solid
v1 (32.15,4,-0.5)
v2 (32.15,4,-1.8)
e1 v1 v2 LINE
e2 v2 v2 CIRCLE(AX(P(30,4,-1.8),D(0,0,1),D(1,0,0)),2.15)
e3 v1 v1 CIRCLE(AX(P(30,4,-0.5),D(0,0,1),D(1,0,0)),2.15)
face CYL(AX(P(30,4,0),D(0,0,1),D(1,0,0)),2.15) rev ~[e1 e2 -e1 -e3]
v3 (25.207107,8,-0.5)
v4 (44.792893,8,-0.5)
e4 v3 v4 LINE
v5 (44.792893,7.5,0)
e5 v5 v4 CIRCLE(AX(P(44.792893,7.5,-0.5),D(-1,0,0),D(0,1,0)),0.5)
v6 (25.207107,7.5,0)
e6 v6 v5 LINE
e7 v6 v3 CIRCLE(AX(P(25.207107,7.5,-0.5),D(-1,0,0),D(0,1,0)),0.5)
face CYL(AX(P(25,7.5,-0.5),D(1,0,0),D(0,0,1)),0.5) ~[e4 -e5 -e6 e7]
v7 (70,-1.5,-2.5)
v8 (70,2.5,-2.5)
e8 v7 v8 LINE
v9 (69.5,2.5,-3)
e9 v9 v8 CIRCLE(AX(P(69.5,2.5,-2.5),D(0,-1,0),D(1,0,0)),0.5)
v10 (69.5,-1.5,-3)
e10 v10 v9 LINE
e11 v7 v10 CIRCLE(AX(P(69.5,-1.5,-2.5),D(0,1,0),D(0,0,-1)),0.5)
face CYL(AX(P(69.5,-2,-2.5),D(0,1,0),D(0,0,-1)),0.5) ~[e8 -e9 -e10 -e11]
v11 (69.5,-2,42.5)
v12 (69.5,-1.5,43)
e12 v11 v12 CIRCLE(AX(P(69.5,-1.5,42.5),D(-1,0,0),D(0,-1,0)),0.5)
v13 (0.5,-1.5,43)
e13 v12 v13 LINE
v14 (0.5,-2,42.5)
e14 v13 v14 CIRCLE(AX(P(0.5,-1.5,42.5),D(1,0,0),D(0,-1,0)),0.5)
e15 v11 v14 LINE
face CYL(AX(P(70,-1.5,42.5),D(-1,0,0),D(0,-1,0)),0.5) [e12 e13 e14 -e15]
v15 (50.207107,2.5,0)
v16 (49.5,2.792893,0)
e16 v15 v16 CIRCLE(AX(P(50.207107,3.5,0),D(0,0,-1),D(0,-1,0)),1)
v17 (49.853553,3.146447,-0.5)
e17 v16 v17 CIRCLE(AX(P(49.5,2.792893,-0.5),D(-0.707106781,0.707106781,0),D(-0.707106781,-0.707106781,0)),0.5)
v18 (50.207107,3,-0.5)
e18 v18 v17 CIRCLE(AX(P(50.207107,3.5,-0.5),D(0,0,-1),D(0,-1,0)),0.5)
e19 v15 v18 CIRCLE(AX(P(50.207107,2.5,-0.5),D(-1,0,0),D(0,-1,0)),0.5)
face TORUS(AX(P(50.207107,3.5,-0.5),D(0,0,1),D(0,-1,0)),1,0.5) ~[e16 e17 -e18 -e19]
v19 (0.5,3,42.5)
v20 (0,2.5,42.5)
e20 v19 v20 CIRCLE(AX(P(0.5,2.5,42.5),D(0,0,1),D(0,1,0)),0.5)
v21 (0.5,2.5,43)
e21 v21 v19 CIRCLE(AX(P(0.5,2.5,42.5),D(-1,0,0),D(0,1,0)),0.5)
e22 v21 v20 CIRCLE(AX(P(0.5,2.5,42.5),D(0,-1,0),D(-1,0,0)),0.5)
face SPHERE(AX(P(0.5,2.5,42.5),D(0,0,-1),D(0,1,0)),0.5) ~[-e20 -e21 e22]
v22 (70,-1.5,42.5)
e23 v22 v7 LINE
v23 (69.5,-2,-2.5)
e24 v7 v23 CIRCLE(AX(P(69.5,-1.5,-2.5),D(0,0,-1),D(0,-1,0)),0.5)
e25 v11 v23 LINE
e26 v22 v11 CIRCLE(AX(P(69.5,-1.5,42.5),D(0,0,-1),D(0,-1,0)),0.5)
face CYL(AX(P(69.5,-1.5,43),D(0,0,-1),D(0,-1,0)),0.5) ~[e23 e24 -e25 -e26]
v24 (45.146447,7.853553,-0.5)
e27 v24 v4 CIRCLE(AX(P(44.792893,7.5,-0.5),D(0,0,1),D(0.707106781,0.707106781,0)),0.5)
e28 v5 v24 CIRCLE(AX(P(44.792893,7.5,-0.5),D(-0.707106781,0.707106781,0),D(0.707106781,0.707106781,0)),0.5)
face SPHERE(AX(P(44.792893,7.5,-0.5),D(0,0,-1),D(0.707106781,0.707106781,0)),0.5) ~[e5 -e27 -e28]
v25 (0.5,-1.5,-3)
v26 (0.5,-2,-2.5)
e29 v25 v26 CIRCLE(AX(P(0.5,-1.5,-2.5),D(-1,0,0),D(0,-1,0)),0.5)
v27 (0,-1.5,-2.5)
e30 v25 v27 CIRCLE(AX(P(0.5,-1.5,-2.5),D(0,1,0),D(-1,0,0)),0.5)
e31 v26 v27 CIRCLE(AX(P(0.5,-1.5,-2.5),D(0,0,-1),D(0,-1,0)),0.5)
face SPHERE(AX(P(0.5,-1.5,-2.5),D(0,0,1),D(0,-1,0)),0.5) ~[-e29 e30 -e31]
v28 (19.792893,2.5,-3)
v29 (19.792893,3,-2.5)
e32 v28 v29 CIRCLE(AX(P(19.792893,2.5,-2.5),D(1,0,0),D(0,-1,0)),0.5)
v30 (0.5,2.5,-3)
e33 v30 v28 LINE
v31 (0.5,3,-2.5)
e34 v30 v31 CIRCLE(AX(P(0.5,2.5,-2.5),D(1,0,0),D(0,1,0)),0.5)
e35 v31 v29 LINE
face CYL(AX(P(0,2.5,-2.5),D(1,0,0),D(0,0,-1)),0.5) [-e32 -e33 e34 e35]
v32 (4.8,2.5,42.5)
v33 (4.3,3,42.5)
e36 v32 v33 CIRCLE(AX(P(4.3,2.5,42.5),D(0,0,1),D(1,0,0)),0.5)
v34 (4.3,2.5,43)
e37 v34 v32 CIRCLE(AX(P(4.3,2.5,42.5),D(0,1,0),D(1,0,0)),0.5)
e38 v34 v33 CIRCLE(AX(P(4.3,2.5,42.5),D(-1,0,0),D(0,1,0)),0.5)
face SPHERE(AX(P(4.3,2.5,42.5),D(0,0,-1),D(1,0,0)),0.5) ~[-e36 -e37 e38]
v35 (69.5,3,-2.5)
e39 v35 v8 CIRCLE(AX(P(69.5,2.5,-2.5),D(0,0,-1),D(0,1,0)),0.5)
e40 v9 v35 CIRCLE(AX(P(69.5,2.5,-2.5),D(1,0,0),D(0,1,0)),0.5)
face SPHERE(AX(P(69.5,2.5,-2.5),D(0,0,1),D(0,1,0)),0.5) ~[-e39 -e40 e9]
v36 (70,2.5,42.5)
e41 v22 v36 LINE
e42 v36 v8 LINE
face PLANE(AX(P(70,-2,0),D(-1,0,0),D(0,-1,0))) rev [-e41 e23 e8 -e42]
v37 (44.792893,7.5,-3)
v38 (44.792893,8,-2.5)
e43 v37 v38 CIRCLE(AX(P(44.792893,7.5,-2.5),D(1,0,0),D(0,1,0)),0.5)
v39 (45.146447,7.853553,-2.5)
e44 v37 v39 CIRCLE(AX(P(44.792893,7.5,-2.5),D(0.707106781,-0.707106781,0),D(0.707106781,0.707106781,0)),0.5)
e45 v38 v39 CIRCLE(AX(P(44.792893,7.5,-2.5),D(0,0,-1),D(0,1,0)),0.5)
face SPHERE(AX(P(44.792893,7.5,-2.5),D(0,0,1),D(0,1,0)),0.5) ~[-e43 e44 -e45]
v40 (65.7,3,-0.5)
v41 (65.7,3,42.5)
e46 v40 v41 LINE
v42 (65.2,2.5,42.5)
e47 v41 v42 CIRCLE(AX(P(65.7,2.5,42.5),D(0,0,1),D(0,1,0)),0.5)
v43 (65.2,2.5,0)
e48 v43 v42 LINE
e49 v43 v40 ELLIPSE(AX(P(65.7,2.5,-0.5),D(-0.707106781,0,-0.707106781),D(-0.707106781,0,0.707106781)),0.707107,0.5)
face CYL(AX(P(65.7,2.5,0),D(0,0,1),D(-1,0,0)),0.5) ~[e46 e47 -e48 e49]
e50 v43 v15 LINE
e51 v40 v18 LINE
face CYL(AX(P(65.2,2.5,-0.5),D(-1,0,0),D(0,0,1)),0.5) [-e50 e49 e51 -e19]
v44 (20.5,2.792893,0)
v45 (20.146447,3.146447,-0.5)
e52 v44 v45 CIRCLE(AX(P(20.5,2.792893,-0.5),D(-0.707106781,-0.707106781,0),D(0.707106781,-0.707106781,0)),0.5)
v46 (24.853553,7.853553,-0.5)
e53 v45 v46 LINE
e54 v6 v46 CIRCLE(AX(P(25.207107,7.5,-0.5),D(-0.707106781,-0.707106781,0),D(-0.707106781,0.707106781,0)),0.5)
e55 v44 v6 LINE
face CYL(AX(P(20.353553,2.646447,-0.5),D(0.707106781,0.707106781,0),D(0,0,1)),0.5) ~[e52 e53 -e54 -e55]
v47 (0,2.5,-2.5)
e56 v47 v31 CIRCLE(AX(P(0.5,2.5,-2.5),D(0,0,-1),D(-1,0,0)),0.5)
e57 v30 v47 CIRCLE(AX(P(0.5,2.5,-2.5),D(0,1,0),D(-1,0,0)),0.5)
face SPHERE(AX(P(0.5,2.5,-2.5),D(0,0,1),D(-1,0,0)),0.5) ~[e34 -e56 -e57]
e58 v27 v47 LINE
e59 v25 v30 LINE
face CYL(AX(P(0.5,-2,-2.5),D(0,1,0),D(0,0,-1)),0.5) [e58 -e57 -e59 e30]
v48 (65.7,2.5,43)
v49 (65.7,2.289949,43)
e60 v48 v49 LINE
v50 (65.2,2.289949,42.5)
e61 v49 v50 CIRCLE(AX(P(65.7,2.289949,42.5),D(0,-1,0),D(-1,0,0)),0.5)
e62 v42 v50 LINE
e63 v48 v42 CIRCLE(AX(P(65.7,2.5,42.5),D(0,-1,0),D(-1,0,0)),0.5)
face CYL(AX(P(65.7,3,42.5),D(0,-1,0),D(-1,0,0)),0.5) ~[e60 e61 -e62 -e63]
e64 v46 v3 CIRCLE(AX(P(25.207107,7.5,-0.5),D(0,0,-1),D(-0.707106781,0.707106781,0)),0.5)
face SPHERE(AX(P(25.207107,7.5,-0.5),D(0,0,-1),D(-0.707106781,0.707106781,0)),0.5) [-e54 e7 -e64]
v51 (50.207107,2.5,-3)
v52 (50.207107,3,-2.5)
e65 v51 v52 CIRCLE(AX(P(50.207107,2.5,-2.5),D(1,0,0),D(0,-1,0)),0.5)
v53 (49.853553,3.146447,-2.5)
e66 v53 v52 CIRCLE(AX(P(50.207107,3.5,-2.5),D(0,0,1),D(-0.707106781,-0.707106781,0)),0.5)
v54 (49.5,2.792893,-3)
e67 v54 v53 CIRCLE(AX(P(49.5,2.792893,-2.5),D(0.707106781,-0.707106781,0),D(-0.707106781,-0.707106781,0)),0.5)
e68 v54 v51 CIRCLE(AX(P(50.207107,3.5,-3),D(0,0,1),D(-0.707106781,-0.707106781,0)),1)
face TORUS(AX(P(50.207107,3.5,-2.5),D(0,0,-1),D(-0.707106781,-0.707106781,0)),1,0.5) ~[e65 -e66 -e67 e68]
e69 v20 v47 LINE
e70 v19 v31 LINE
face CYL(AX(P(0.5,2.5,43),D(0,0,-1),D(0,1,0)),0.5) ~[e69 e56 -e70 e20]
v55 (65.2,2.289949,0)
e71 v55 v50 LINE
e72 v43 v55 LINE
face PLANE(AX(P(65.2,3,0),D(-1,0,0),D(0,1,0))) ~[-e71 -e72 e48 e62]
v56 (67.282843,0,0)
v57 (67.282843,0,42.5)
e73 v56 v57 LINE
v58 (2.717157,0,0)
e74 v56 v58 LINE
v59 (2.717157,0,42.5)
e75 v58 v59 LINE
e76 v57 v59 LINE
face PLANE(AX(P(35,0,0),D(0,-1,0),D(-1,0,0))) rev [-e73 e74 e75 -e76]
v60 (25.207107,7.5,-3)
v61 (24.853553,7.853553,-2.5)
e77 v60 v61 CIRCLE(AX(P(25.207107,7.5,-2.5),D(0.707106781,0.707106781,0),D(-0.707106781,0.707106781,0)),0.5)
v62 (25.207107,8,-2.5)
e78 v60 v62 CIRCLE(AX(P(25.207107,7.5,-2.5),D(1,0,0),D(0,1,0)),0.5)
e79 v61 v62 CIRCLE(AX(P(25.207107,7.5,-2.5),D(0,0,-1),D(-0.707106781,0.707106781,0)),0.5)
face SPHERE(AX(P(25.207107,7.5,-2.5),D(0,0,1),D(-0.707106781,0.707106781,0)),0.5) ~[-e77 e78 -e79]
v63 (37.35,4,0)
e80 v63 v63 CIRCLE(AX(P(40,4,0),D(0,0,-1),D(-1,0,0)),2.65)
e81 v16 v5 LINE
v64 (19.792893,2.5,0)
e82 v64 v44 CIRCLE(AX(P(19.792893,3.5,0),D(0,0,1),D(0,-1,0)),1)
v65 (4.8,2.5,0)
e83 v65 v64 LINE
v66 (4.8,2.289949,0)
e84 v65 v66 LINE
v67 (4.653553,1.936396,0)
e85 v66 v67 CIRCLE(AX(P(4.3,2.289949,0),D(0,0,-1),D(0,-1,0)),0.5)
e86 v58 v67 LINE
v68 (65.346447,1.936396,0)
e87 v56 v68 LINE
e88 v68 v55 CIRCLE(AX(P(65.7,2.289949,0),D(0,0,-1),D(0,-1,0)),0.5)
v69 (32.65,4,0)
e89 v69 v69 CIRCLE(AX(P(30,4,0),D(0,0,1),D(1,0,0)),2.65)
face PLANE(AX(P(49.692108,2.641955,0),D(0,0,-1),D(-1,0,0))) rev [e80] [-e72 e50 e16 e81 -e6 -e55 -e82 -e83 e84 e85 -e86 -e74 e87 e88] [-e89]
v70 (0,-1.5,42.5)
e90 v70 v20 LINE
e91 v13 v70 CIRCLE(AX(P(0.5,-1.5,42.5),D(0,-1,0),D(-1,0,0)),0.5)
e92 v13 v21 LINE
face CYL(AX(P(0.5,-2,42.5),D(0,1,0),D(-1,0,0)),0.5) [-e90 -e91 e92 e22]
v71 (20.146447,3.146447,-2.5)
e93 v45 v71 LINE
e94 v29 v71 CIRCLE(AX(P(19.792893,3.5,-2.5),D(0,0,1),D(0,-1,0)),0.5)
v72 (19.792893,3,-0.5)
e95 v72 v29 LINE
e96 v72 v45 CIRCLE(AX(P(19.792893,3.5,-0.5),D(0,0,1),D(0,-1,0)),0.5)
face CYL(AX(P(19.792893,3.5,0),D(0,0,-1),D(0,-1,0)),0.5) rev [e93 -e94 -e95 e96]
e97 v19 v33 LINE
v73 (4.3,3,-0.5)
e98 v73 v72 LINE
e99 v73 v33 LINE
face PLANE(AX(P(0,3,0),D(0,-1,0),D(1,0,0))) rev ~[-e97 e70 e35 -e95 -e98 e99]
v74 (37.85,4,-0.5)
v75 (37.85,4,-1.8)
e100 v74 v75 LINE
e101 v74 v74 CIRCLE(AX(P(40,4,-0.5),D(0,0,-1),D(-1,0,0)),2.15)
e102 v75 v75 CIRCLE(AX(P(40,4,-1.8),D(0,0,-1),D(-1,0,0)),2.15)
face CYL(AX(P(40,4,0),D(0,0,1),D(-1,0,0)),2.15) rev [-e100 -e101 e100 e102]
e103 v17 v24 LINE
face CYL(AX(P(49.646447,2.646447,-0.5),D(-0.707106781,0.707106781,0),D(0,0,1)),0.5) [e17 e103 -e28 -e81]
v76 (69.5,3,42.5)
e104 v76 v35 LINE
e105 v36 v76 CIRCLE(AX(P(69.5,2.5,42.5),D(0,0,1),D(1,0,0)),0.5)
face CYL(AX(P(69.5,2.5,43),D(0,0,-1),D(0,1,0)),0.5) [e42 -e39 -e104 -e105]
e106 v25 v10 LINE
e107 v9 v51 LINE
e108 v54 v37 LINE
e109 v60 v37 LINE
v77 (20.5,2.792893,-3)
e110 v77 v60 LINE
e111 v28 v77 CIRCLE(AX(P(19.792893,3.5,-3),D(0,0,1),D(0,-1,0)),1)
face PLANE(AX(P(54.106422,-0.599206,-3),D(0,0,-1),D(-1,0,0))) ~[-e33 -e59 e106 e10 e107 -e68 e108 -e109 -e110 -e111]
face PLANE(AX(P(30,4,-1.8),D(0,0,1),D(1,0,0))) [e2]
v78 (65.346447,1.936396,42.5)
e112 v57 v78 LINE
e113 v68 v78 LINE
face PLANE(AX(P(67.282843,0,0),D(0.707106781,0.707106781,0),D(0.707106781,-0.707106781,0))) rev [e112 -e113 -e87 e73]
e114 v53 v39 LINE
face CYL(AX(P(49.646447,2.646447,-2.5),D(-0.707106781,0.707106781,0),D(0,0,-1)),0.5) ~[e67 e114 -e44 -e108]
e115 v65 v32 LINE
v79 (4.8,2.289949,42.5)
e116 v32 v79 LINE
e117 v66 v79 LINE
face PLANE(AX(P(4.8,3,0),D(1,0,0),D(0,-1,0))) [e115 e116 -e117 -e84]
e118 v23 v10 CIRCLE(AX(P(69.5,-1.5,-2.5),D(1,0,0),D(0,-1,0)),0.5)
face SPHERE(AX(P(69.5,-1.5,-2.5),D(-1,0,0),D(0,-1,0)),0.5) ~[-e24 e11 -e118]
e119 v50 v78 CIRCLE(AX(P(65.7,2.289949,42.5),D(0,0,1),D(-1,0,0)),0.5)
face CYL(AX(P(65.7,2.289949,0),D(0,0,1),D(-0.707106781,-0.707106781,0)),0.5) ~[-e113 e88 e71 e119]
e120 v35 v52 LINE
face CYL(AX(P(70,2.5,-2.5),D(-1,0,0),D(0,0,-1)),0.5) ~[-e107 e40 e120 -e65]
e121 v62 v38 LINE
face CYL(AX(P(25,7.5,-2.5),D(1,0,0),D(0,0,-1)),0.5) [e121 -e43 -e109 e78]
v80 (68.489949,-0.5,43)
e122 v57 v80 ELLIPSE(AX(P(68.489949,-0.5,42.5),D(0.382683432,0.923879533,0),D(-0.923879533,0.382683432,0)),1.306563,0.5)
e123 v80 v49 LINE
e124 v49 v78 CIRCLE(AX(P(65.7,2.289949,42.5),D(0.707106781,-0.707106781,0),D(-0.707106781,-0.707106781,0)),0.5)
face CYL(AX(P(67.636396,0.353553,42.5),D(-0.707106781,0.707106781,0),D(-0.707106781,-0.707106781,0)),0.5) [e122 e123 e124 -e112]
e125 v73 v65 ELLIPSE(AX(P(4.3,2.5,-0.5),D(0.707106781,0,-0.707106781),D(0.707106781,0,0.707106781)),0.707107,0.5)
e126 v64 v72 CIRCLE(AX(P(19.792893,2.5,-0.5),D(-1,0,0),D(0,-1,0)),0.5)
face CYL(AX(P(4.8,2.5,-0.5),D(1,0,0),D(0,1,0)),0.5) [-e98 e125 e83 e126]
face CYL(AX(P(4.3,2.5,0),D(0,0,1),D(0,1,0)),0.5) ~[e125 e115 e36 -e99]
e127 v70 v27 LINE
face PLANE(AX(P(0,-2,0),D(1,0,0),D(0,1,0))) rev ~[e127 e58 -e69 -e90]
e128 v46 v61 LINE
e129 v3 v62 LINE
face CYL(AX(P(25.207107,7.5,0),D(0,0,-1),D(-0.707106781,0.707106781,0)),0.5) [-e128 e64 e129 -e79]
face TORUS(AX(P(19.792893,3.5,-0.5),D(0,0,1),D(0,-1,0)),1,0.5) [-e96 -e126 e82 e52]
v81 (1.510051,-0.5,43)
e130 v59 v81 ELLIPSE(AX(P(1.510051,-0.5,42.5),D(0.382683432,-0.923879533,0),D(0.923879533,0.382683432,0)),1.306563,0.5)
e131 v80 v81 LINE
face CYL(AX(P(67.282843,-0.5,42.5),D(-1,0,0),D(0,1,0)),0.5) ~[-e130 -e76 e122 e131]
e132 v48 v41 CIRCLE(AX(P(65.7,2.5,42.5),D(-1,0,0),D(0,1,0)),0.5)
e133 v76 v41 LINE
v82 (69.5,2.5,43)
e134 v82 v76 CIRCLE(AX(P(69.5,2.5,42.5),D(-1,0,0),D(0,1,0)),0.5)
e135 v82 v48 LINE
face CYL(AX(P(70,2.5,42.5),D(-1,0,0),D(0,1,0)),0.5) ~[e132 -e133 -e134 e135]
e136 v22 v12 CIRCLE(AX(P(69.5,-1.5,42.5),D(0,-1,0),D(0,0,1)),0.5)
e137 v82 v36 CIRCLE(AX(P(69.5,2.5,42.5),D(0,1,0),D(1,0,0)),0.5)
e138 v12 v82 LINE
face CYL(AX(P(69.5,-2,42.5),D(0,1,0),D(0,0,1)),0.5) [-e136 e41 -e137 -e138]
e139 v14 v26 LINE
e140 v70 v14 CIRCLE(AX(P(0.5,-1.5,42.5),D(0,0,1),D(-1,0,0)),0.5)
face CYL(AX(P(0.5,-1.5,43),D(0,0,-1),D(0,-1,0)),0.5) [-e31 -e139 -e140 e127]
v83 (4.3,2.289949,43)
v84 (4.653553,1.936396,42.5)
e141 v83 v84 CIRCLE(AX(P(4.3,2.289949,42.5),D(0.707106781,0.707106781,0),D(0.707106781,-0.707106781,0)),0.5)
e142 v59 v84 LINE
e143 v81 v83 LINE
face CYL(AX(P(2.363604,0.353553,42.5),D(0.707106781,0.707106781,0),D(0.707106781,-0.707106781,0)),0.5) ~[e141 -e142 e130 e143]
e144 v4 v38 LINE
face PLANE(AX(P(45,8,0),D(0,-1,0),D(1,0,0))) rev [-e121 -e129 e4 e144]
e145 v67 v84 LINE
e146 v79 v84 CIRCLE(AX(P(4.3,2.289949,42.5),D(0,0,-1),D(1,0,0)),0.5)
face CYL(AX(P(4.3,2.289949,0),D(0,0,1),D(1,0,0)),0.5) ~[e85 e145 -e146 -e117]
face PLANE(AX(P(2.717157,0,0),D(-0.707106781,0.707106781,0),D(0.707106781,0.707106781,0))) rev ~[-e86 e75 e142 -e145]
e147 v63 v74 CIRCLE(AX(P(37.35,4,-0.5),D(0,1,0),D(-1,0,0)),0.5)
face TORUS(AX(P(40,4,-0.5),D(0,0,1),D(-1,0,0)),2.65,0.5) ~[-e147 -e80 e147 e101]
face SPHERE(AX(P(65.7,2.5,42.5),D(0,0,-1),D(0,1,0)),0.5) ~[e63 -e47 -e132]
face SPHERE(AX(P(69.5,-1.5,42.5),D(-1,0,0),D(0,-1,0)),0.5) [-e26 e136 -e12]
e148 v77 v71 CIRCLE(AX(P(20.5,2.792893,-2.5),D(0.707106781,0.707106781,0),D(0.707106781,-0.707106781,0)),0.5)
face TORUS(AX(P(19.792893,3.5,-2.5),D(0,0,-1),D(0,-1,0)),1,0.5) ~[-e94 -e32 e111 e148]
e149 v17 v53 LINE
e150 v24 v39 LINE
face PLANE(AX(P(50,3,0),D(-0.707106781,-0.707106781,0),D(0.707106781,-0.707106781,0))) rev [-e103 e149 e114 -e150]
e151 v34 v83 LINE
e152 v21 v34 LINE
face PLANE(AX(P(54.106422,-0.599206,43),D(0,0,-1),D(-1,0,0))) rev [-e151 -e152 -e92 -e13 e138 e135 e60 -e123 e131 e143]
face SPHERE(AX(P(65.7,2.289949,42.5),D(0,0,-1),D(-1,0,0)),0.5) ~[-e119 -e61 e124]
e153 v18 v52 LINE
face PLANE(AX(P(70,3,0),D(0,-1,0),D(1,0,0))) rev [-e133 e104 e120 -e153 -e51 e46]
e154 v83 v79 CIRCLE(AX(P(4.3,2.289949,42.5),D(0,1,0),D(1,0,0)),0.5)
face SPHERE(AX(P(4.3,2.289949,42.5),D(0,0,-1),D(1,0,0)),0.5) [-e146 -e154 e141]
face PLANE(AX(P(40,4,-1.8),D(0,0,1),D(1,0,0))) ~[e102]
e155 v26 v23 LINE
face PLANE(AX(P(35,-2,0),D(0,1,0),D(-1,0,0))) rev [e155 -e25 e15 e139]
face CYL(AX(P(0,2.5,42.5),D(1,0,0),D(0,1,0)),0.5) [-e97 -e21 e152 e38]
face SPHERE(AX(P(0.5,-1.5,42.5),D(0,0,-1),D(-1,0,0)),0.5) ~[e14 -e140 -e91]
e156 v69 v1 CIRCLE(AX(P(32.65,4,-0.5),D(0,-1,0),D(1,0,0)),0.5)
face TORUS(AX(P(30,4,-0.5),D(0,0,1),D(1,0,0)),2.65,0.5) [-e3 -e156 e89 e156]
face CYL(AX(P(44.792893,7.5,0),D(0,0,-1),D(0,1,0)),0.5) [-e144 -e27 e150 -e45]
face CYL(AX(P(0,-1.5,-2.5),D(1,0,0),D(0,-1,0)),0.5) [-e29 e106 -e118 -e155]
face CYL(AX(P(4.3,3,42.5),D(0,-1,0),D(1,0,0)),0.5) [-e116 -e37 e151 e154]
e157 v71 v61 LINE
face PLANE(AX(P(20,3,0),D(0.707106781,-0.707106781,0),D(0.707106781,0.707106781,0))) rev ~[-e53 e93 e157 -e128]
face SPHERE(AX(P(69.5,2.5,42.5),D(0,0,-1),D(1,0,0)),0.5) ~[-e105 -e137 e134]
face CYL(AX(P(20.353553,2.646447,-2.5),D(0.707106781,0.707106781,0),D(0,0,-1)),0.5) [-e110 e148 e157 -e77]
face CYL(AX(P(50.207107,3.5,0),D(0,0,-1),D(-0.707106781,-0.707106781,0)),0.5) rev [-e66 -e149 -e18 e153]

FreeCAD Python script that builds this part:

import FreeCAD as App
import Part
import Sketcher

V = App.Vector
Q = App.Units.Quantity


def edges_at(feature, points):
    """Names of the edges that pass closest to the given points."""
    edges = feature.Shape.Edges
    near = lambda p: min(range(len(edges)), key=lambda i: edges[i].distToShape(Part.Vertex(*p))[0])
    return sorted({f"Edge{near(p) + 1}" for p in points})


def add_polygon(sketch, points):
    """Adds a closed chain of lines whose ends are joined by coincident constraints."""
    first, n = sketch.GeometryCount, len(points)
    for a, b in zip(points, points[1:] + points[:1]):
        sketch.addGeometry(Part.LineSegment(App.Vector(*a, 0), App.Vector(*b, 0)), False)
    for i in range(n):
        sketch.addConstraint(Sketcher.Constraint("Coincident", first + i, 2, first + (i + 1) % n, 1))

doc = App.newDocument("Part")
body = doc.addObject("PartDesign::Body", "Body")

sketch1 = body.newObject("Sketcher::SketchObject", "Sketch")
sketch1.AttachmentSupport = (doc.getObject("XY_Plane"), [""])
sketch1.MapMode = "FlatFace"
add_polygon(sketch1, [(35, 0), (2.7, 0), (4.8, 2.1), (4.8, 3), (0, 3), (0, -2), (35, -2)])
sketch1.addConstraint([
    Sketcher.Constraint("Horizontal", 0),
    Sketcher.Constraint("Vertical", 2),
    Sketcher.Constraint("Horizontal", 3),
    Sketcher.Constraint("Vertical", 4),
    Sketcher.Constraint("Horizontal", 5),
    Sketcher.Constraint("Vertical", 6),
    Sketcher.Constraint("PointOnObject", 0, 2, -1),
    Sketcher.Constraint("PointOnObject", 3, 2, -2),
    Sketcher.Constraint("DistanceX", 5, 1, 5, 2, 35.0),
    Sketcher.Constraint("DistanceY", 4, 2, 4, 1, 5.0),
    Sketcher.Constraint("DistanceY", 6, 1, 6, 2, 2.0),
    Sketcher.Constraint("Angle", 1, Q("45 deg")),
    Sketcher.Constraint("DistanceX", 3, 2, 3, 1, 4.8),
    Sketcher.Constraint("DistanceX", 0, 2, 0, 1, 32.282843),
])
pad1 = body.newObject("PartDesign::Pad", "Pad")
pad1.Profile = sketch1
pad1.Length = 43

sketch2 = body.newObject("Sketcher::SketchObject", "Sketch001")
sketch2.AttachmentSupport = (doc.getObject("XY_Plane"), [""])
sketch2.MapMode = "FlatFace"
add_polygon(sketch2, [(35, -2), (35, 8), (25, 8), (20, 3), (0, 3), (0, -2)])
sketch2.addConstraint([
    Sketcher.Constraint("Vertical", 0),
    Sketcher.Constraint("Horizontal", 1),
    Sketcher.Constraint("Horizontal", 3),
    Sketcher.Constraint("Vertical", 4),
    Sketcher.Constraint("Horizontal", 5),
    Sketcher.Constraint("PointOnObject", 3, 2, -2),
    Sketcher.Constraint("Equal", 1, 0),
    Sketcher.Constraint("DistanceX", 1, 2, 1, 1, 10.0),
    Sketcher.Constraint("DistanceX", 3, 2, 3, 1, 20.0),
    Sketcher.Constraint("DistanceX", 5, 1, 5, 2, 35.0),
    Sketcher.Constraint("DistanceY", 4, 2, 4, 1, 5.0),
    Sketcher.Constraint("DistanceY", -1, 1, 0, 2, 8.0),
])
pad2 = body.newObject("PartDesign::Pad", "Pad001")
pad2.Profile = sketch2
pad2.Length = 3
pad2.Reversed = True

sketch3 = body.newObject("Sketcher::SketchObject", "Sketch002")
sketch3.AttachmentSupport = (doc.getObject("XY_Plane"), [""])
sketch3.MapMode = "FlatFace"
sketch3.addGeometry(Part.Circle(V(30, 4, 0), V(0, 0, 1), 2.1), False)
sketch3.addConstraint([
    Sketcher.Constraint("Diameter", 0, 4.3),
    Sketcher.Constraint("DistanceX", -1, 1, 0, 3, 30.0),
    Sketcher.Constraint("DistanceY", -1, 1, 0, 3, 4.0),
])
pocket1 = body.newObject("PartDesign::Pocket", "Pocket")
pocket1.Profile = sketch3
pocket1.Length = 1.8
body2 = doc.addObject("PartDesign::Body", "Body001")
doc.recompute()

body2.BaseFeature = body
doc.recompute()

mirroring = doc.addObject("Part::Mirroring", "Mirroring")
mirroring.Source = body
mirroring.Base = V(35, 0, 43)
mirroring.Normal = V(-1, 0, 0)
body3 = doc.addObject("PartDesign::Body", "Body002")
body3.BaseFeature = mirroring
boolean = body2.newObject("PartDesign::Boolean", "Boolean")
boolean.Type = "Fuse"
boolean.addObjects([body3])
doc.recompute()

fillet = body2.newObject("PartDesign::Fillet", "Fillet")
fillet.Base = (boolean, edges_at(boolean, [
    (3.759, 1.041, 43),
    (0, -2, 20),
    (0, 3, 20),
    (4.8, 3, 21.5),
    (4.8, 2.083, 21.5),
    (4.8, 2.541, 43),
    (2.4, 3, 43),
    (12.4, 3, 0),
    (0, 0.5, 43),
    (22.5, 5.5, 0),
    (20, 3, -1.5),
    (35, 8, 0),
    (25, 8, -1.5),
    (35, -2, -3),
    (0, 0.5, -3),
    (10, 3, -3),
    (22.5, 5.5, -3),
    (35, 8, -3),
    (35, -2, 43),
    (27.85, 4, 0),
    (65.2, 2.083, 21.5),
    (65.2, 3, 21.5),
    (70, 3, 20),
    (60, 3, -3),
    (50, 3, -1.5),
    (70, -2, 20),
    (70, 0.5, -3),
    (35, 0, 43),
    (70, 0.5, 43),
    (67.6, 3, 43),
    (65.2, 2.541, 43),
    (66.241, 1.041, 43),
    (47.5, 5.5, -3),
    (45, 8, -1.5),
    (42.15, 4, 0),
    (57.6, 3, 0),
    (47.5, 5.5, 0),
]))
fillet.Radius = 0.5
mirroring.Visibility = False

doc.recompute()
